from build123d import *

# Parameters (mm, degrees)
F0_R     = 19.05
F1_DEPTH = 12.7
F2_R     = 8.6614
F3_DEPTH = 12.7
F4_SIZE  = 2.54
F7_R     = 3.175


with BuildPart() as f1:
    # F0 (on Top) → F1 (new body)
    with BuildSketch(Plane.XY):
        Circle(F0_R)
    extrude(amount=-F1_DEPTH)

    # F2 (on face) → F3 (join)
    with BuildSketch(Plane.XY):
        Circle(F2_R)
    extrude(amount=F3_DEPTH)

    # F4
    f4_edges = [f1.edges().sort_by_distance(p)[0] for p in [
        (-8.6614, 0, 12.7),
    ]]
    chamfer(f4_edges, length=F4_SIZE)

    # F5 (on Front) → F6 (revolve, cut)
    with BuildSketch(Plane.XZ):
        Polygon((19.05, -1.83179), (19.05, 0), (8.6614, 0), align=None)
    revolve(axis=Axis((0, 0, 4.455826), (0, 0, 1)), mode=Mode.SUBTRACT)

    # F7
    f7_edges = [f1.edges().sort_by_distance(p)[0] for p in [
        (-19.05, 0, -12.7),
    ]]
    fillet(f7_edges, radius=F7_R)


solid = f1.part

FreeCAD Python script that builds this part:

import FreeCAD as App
import Part
import Sketcher
from FreeCAD import Vector
Q = App.Units.Quantity


def edges_at(feature, points):
    """Names of the edges that pass closest to the given points."""
    edges = feature.Shape.Edges
    near = lambda p: min(range(len(edges)), key=lambda i: edges[i].distToShape(Part.Vertex(*p))[0])
    return sorted({f"Edge{near(p) + 1}" for p in points})


def add_polygon(sketch, points):
    """Adds a closed chain of lines whose ends are joined by coincident constraints."""
    first, n = sketch.GeometryCount, len(points)
    for a, b in zip(points, points[1:] + points[:1]):
        sketch.addGeometry(Part.LineSegment(App.Vector(*a, 0), App.Vector(*b, 0)), False)
    for i in range(n):
        sketch.addConstraint(Sketcher.Constraint("Coincident", first + i, 2, first + (i + 1) % n, 1))

doc = App.newDocument("Part")
body = doc.addObject("PartDesign::Body", "Body")

# Sketch on XY plane
sketch1 = body.newObject("Sketcher::SketchObject", "Sketch")
sketch1.AttachmentSupport = (doc.getObject("XY_Plane"), [""])
sketch1.MapMode = "FlatFace"
sketch1.addGeometry(Part.Circle(Vector(0, 0, 0), Vector(0, 0, 1), 19), False)
sketch1.addConstraint([
    Sketcher.Constraint("Coincident", 0, 3, -1, 1),
    Sketcher.Constraint("Diameter", 0, Q("1.5 in")),
])
pad1 = body.newObject("PartDesign::Pad", "Pad")
pad1.Profile = sketch1
pad1.Length = Q("0.5 in")
pad1.Reversed = True

# Sketch on XY plane
sketch2 = body.newObject("Sketcher::SketchObject", "Sketch001")
sketch2.AttachmentSupport = (doc.getObject("XY_Plane"), [""])
sketch2.MapMode = "FlatFace"
sketch2.addGeometry(Part.Circle(Vector(0, 0, 0), Vector(0, 0, 1), 9), False)
sketch2.addConstraint([
    Sketcher.Constraint("Coincident", 0, 3, -1, 1),
    Sketcher.Constraint("Diameter", 0, Q("0.682 in")),
])
pad2 = body.newObject("PartDesign::Pad", "Pad001")
pad2.Profile = sketch2
pad2.Length = Q("0.5 in")
doc.recompute()

chamfer = body.newObject("PartDesign::Chamfer", "Chamfer")
chamfer.Base = (pad2, edges_at(pad2, [(-8.661, 0, 12.7)]))
chamfer.Size = Q("0.1 in")

# Sketch on XZ plane
sketch3 = body.newObject("Sketcher::SketchObject", "Sketch002")
sketch3.AttachmentSupport = (doc.getObject("XZ_Plane"), [""])
sketch3.MapMode = "FlatFace"
add_polygon(sketch3, [(19.1, -1.8), (19.1, 0), (8.7, 0)])  # lines 0-2
sketch3.addConstraint([
    Sketcher.Constraint("Vertical", 0),
    Sketcher.Constraint("Horizontal", 1),
    Sketcher.Constraint("PointOnObject", 0, 2, -1),
    Sketcher.Constraint("Angle", 2, Q("-9.999997 deg")),
    Sketcher.Constraint("DistanceX", 1, 2, 1, 1, Q("0.409 in")),
    Sketcher.Constraint("DistanceX", -1, 1, 0, 2, Q("0.75 in")),
])
groove = body.newObject("PartDesign::Groove", "Groove")
groove.Profile = sketch3
groove.ReferenceAxis = (sketch3, ["V_Axis"])
groove.Angle = 360
doc.recompute()

fillet = body.newObject("PartDesign::Fillet", "Fillet")
fillet.Base = (groove, edges_at(groove, [(-19.05, 0, -12.7)]))
fillet.Radius = Q("0.125 in")

doc.recompute()
